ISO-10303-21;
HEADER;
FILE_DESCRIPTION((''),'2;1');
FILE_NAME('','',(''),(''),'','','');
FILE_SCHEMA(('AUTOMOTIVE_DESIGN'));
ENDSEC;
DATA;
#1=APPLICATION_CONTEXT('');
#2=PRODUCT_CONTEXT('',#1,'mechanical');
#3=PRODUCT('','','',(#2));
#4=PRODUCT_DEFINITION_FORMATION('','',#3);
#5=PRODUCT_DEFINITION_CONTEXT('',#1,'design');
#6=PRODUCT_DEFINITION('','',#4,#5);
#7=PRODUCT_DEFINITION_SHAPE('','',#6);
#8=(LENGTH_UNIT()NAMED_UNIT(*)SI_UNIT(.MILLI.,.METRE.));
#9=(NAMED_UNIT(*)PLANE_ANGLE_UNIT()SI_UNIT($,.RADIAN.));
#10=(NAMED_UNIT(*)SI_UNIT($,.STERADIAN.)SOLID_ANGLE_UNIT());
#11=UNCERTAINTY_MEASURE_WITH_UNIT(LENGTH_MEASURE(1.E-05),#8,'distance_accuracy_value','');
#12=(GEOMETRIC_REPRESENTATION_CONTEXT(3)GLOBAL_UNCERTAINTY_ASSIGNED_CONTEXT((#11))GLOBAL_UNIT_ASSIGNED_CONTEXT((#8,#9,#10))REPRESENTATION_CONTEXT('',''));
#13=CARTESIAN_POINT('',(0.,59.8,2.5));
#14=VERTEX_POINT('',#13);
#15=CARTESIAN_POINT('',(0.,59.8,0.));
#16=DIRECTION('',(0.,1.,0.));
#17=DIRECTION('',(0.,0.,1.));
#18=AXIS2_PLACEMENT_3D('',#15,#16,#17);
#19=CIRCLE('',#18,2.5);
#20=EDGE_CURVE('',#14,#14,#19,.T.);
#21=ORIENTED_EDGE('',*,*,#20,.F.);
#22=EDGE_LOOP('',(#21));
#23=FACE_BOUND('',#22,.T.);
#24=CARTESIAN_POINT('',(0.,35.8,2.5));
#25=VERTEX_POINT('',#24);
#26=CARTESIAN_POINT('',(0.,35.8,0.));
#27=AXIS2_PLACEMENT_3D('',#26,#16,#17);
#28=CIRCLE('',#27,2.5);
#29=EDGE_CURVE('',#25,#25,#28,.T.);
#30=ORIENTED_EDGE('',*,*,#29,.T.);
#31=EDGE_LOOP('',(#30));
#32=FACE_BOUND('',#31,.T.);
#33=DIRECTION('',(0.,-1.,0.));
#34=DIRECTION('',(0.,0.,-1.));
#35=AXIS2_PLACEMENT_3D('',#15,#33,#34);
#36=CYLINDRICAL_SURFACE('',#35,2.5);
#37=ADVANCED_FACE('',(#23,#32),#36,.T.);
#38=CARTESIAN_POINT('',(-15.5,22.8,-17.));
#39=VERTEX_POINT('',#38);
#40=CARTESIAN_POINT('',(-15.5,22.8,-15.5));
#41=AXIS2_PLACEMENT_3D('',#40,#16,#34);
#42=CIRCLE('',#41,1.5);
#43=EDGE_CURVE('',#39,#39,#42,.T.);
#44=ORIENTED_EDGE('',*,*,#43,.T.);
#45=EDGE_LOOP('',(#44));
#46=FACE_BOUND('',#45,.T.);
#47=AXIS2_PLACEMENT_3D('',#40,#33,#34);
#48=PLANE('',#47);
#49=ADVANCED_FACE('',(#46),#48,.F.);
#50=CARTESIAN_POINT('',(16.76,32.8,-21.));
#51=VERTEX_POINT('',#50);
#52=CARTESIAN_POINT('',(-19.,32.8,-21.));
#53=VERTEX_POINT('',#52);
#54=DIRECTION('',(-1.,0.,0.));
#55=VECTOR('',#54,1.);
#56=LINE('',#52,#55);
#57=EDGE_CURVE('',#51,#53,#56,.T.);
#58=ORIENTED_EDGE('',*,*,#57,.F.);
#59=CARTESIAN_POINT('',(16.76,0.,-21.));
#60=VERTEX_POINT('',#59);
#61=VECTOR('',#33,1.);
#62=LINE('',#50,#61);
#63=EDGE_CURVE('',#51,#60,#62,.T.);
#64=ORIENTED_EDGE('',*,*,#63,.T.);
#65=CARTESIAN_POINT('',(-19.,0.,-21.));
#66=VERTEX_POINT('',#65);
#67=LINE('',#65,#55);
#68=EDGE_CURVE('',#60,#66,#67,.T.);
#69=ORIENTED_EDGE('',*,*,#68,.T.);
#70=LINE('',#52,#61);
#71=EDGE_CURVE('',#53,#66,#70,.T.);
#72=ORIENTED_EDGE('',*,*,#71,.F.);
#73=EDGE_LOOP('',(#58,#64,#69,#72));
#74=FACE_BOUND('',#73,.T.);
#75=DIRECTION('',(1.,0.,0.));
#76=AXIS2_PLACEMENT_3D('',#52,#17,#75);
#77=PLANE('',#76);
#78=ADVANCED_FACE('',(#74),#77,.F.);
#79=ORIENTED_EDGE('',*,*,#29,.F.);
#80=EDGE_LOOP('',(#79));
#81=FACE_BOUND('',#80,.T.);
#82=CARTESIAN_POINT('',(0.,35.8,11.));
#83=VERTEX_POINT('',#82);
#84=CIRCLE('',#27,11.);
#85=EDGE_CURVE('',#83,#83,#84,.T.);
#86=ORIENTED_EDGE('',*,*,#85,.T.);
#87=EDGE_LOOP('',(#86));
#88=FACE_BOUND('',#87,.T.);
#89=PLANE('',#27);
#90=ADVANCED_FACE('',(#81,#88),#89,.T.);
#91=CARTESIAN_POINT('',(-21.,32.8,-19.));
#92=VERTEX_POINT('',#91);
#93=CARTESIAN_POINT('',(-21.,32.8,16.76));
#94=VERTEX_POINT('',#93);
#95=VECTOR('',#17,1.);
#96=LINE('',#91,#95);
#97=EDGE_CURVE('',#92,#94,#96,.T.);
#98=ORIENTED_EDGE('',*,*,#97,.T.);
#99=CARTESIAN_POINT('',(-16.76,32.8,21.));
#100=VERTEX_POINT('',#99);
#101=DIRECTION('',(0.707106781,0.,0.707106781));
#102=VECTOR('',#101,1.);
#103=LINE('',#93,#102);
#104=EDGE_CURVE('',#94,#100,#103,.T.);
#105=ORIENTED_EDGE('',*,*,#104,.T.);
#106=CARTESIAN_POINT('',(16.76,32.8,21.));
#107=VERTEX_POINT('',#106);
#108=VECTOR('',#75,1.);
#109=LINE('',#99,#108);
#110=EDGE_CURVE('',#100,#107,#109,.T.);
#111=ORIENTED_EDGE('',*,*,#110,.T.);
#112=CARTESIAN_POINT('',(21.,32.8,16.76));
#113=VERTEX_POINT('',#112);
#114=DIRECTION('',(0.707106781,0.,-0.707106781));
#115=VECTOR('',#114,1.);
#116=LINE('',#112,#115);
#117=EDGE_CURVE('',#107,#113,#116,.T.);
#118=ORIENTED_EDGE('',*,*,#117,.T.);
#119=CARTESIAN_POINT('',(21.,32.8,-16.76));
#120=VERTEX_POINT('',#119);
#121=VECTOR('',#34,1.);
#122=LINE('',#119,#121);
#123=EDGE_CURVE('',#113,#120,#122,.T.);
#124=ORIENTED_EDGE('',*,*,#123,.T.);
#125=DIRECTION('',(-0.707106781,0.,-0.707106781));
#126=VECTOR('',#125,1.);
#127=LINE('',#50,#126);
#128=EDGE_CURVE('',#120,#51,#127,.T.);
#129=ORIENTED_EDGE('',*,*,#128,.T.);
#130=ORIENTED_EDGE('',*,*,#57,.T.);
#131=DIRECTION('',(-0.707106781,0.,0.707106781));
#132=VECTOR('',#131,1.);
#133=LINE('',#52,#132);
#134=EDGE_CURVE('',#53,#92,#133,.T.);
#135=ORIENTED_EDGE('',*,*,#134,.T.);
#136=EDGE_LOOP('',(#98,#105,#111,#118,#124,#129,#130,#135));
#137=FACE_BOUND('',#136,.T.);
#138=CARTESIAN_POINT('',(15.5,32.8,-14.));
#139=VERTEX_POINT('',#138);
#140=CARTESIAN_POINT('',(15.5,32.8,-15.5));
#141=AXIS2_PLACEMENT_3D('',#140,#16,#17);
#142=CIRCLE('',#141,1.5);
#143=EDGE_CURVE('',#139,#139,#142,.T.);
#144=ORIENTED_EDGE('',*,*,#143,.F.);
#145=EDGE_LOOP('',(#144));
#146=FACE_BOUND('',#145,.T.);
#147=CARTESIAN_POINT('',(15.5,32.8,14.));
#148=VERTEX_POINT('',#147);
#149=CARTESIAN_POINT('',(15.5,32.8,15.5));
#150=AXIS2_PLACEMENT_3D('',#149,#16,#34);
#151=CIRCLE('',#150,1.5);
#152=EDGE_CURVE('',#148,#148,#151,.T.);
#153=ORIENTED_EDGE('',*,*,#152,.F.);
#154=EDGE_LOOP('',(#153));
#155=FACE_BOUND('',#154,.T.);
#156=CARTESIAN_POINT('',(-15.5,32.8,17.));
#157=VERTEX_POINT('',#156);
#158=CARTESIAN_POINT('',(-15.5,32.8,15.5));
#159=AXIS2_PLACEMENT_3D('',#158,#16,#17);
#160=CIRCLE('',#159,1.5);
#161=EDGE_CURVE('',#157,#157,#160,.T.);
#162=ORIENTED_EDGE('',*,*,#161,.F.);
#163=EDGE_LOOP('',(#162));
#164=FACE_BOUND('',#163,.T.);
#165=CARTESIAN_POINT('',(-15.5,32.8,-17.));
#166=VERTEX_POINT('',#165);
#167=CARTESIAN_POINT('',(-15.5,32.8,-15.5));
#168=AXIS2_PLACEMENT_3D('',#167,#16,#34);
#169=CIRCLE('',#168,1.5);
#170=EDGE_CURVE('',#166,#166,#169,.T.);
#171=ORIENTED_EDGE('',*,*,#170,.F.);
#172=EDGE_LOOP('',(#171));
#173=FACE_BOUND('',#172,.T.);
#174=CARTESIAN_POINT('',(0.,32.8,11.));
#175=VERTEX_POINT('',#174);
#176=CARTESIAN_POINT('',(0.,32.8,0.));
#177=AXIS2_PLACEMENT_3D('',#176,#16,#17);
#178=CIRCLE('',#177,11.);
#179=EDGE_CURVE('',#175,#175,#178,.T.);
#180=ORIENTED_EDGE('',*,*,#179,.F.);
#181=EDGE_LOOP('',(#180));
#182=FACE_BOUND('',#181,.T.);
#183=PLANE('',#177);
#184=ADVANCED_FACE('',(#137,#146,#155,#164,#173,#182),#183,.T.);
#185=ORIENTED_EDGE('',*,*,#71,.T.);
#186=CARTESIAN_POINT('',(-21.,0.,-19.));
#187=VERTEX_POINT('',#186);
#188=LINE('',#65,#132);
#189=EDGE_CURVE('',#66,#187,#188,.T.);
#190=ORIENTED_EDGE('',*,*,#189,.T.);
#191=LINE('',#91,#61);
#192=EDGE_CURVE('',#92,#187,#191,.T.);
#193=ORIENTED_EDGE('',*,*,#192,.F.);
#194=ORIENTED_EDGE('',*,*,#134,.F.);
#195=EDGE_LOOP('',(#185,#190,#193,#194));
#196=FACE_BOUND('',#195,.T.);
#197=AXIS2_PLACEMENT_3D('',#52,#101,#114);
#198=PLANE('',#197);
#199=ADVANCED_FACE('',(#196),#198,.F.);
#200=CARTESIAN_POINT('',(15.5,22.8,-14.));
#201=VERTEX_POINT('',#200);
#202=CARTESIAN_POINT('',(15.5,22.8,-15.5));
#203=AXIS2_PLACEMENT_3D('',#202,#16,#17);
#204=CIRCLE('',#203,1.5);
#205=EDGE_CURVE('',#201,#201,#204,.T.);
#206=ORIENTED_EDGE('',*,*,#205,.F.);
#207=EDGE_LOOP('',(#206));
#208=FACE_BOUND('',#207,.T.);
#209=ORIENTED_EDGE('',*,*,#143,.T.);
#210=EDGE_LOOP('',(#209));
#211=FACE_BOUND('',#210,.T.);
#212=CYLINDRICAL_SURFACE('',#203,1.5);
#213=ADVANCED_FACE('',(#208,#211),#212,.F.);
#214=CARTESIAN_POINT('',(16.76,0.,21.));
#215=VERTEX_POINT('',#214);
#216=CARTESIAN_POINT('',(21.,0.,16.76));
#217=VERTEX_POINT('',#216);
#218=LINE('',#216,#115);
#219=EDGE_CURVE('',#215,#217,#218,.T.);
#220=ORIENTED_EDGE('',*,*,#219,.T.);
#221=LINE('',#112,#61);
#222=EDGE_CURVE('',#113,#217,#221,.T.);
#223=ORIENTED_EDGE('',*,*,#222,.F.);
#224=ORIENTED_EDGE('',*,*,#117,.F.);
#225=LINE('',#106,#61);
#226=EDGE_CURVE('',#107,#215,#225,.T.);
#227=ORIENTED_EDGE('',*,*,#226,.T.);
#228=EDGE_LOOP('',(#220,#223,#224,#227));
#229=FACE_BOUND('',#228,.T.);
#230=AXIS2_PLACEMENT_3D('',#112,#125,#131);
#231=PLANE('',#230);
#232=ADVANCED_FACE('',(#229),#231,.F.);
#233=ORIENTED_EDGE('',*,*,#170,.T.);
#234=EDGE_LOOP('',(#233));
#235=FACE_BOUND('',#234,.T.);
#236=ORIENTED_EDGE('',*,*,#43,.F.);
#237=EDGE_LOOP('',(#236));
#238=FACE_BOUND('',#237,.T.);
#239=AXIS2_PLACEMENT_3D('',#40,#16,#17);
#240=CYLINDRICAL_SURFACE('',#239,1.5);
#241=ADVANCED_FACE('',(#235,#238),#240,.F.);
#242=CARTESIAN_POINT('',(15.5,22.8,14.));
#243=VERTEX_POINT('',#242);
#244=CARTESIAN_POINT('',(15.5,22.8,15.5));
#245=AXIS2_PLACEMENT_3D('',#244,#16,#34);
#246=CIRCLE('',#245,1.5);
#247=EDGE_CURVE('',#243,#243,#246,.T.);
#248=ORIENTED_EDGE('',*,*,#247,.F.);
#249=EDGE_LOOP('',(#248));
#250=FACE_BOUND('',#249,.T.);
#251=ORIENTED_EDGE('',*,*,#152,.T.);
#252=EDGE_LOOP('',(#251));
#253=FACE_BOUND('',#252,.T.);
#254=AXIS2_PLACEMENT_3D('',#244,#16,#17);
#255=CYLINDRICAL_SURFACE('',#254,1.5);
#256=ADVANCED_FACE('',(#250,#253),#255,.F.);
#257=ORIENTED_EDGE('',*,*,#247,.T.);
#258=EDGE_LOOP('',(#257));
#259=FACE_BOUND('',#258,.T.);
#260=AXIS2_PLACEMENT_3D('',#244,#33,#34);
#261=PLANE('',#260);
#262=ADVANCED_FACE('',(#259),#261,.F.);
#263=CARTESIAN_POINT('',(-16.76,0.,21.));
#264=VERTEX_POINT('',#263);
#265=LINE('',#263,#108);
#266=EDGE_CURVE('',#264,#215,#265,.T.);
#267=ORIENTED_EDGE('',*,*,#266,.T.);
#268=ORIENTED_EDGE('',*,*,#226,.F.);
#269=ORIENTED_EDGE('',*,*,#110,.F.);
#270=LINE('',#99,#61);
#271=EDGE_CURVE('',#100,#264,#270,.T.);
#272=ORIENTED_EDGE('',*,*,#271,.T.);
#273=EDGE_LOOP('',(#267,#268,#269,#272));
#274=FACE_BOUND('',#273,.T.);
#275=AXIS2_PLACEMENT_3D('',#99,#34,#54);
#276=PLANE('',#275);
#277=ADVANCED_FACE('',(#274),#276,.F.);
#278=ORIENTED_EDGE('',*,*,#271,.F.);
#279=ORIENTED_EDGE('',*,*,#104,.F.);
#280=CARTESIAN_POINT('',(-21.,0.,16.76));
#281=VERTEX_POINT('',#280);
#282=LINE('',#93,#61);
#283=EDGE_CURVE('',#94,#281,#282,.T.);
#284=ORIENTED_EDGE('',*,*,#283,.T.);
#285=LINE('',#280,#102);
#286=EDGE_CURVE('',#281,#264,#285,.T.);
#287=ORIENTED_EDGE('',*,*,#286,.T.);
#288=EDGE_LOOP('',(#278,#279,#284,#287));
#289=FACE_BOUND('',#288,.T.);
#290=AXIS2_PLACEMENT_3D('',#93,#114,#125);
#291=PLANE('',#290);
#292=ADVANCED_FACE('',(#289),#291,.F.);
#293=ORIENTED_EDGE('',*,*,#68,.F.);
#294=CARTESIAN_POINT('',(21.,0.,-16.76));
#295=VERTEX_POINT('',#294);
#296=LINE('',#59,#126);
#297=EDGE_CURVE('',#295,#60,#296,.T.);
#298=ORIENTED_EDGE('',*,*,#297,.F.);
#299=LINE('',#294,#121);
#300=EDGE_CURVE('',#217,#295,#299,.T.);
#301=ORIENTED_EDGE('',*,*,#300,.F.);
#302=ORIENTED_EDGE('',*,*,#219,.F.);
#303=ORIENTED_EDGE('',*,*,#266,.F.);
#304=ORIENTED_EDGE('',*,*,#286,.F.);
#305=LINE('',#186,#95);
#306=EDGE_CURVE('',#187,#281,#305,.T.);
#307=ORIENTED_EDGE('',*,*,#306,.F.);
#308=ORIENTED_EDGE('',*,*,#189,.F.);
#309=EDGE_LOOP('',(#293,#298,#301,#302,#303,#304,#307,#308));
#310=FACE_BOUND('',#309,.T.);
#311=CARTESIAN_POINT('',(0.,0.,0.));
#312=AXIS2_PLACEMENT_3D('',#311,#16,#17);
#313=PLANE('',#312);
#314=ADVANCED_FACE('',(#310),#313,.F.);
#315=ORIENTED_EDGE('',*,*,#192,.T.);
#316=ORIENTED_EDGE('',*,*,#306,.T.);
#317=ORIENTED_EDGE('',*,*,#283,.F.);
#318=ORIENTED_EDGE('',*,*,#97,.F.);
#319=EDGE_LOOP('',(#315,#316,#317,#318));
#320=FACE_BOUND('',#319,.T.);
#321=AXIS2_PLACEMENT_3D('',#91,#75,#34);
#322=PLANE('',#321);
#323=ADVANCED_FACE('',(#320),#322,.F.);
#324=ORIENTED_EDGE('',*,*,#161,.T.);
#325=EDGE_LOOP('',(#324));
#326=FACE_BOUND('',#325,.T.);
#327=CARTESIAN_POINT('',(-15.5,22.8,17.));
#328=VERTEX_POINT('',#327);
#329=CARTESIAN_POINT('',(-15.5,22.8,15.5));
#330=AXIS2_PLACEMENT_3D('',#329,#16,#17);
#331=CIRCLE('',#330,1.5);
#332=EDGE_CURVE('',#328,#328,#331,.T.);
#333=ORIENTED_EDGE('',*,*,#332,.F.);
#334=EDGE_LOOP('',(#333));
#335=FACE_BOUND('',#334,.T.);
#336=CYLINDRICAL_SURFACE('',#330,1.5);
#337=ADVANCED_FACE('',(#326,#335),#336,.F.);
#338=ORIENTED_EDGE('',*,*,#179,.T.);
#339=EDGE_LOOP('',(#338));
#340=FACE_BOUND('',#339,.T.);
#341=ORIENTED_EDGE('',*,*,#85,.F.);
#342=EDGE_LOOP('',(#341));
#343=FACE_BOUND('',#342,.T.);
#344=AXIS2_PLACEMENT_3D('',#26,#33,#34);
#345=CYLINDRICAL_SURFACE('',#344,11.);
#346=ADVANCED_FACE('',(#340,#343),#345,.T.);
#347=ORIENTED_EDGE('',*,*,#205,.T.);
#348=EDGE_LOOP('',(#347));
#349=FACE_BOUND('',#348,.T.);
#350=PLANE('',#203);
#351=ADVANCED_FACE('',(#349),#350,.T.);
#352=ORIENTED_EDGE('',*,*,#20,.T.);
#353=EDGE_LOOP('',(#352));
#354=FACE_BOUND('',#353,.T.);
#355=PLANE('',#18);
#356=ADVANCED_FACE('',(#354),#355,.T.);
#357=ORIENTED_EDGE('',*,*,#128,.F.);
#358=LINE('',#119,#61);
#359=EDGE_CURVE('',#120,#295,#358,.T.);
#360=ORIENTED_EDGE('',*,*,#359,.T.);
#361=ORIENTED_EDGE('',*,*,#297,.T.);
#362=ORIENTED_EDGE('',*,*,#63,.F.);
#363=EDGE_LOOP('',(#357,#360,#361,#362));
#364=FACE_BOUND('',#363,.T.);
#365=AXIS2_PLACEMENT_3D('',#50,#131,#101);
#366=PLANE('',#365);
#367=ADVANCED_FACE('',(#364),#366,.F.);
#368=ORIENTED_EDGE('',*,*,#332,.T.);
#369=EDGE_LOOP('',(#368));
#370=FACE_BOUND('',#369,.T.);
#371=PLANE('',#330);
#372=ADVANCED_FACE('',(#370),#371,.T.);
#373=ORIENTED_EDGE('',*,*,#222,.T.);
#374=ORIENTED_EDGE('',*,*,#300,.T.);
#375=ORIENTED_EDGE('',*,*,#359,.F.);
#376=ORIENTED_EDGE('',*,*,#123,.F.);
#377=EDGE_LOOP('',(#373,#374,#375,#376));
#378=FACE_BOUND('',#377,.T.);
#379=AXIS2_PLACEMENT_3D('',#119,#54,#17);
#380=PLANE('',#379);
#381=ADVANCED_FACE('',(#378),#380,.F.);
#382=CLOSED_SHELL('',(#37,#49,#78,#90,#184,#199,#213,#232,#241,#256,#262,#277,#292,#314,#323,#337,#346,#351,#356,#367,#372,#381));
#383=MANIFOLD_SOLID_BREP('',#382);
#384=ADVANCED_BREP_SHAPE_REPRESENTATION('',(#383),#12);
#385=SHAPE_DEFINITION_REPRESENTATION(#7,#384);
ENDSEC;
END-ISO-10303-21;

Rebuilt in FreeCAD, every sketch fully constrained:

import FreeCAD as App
import Part
import Sketcher

V = App.Vector
Q = App.Units.Quantity

doc = App.newDocument("Part")
body = doc.addObject("PartDesign::Body", "Body")

# Sketch on XZ plane
sketch1 = doc.addObject("Sketcher::SketchObject", "Sketch")
body.addObject(sketch1)
sketch1.AttachmentSupport = (doc.XZ_Plane, [""])
sketch1.MapMode = "FlatFace"
sketch1.addGeometry([
    Part.LineSegment(V(-19, -21, 0), V(-21, -19, 0)),  # 0
    Part.LineSegment(V(-21, -19, 0), V(-21, 16.8, 0)),  # 1
    Part.LineSegment(V(-21, 16.8, 0), V(-16.8, 21, 0)),  # 2
    Part.LineSegment(V(-16.8, 21, 0), V(16.8, 21, 0)),  # 3
    Part.LineSegment(V(16.8, 21, 0), V(21, 16.8, 0)),  # 4
    Part.LineSegment(V(21, 16.8, 0), V(21, -16.8, 0)),  # 5
    Part.LineSegment(V(21, -16.8, 0), V(16.8, -21, 0)),  # 6
    Part.LineSegment(V(16.8, -21, 0), V(-19, -21, 0)),  # 7
], False)
sketch1.addConstraint([
    Sketcher.Constraint("Coincident", 0, 2, 1, 1),
    Sketcher.Constraint("Coincident", 1, 2, 2, 1),
    Sketcher.Constraint("Coincident", 2, 2, 3, 1),
    Sketcher.Constraint("Coincident", 3, 2, 4, 1),
    Sketcher.Constraint("Coincident", 4, 2, 5, 1),
    Sketcher.Constraint("Coincident", 5, 2, 6, 1),
    Sketcher.Constraint("Coincident", 6, 2, 7, 1),
    Sketcher.Constraint("Coincident", 7, 2, 0, 1),
    Sketcher.Constraint("Vertical", 1),
    Sketcher.Constraint("Horizontal", 3),
    Sketcher.Constraint("Vertical", 5),
    Sketcher.Constraint("Horizontal", 7),
    Sketcher.Constraint("Symmetric", 1, 2, 5, 2, -1, 1),
    Sketcher.Constraint("Symmetric", 2, 2, 6, 2, -1, 1),
    Sketcher.Constraint("Perpendicular", 0, 2),
    Sketcher.Constraint("Perpendicular", 2, 4),
    Sketcher.Constraint("Horizontal", 1, 2, 4, 2),
    Sketcher.Constraint("Vertical", 3, 2, 6, 2),
    Sketcher.Constraint("Equal", 7, 1),
    Sketcher.Constraint("DistanceX", 0, 2, -1, 1, Q("21 mm")),
    Sketcher.Constraint("DistanceY", 0, 2, -1, 1, Q("19 mm")),
    Sketcher.Constraint("DistanceX", 3, 1, 3, 2, Q("33.52 mm")),
])
pad1 = doc.addObject("PartDesign::Pad", "Pad")
body.addObject(pad1)
pad1.Profile = sketch1
pad1.Length = 32.8
pad1.Reversed = True

# Sketch on XZ plane
sketch2 = doc.addObject("Sketcher::SketchObject", "Sketch001")
body.addObject(sketch2)
sketch2.AttachmentSupport = (doc.XZ_Plane, [""])
sketch2.MapMode = "FlatFace"
sketch2.AttachmentOffset = App.Placement(V(0, 0, -32.8), App.Rotation())
sketch2.addGeometry([
    Part.Circle(V(15.5, -15.5, 0), V(0, 0, 1), 1.5),
    Part.Circle(V(15.5, 15.5, 0), V(0, 0, 1), 1.5),
    Part.Circle(V(-15.5, 15.5, 0), V(0, 0, 1), 1.5),
    Part.Circle(V(-15.5, -15.5, 0), V(0, 0, 1), 1.5),
], False)
sketch2.addConstraint([
    Sketcher.Constraint("Equal", 0, 1),
    Sketcher.Constraint("Equal", 1, 2),
    Sketcher.Constraint("Equal", 2, 3),
    Sketcher.Constraint("Symmetric", 0, 3, 2, 3, -1, 1),
    Sketcher.Constraint("Symmetric", 1, 3, 3, 3, -1, 1),
    Sketcher.Constraint("Symmetric", 1, 3, 2, 3, -2),
    Sketcher.Constraint("Diameter", 0, Q("3 mm")),
    Sketcher.Constraint("DistanceY", 0, 3, 1, 3, Q("31 mm")),
    Sketcher.Constraint("DistanceX", 2, 3, 1, 3, Q("31 mm")),
])
pocket1 = doc.addObject("PartDesign::Pocket", "Pocket")
body.addObject(pocket1)
pocket1.Profile = sketch2
pocket1.Length = 10
pocket1.Reversed = True

# Sketch on XZ plane
sketch3 = doc.addObject("Sketcher::SketchObject", "Sketch002")
body.addObject(sketch3)
sketch3.AttachmentSupport = (doc.XZ_Plane, [""])
sketch3.MapMode = "FlatFace"
sketch3.AttachmentOffset = App.Placement(V(0, 0, -32.8), App.Rotation())
sketch3.addGeometry(Part.Circle(V(0, 0, 0), V(0, 0, 1), 11), False)
sketch3.addConstraint([
    Sketcher.Constraint("Coincident", 0, 3, -1, 1),
    Sketcher.Constraint("Diameter", 0, Q("22 mm")),
])
pad2 = doc.addObject("PartDesign::Pad", "Pad001")
body.addObject(pad2)
pad2.Profile = sketch3
pad2.Length = 3
pad2.Reversed = True

# Sketch on XZ plane
sketch4 = doc.addObject("Sketcher::SketchObject", "Sketch003")
body.addObject(sketch4)
sketch4.AttachmentSupport = (doc.XZ_Plane, [""])
sketch4.MapMode = "FlatFace"
sketch4.AttachmentOffset = App.Placement(V(0, 0, -35.8), App.Rotation())
sketch4.addGeometry(Part.Circle(V(0, 0, 0), V(0, 0, 1), 2.5), False)
sketch4.addConstraint([
    Sketcher.Constraint("Coincident", 0, 3, -1, 1),
    Sketcher.Constraint("Diameter", 0, Q("5 mm")),
])
pad3 = doc.addObject("PartDesign::Pad", "Pad002")
body.addObject(pad3)
pad3.Profile = sketch4
pad3.Length = 24
pad3.Reversed = True

doc.recompute()
